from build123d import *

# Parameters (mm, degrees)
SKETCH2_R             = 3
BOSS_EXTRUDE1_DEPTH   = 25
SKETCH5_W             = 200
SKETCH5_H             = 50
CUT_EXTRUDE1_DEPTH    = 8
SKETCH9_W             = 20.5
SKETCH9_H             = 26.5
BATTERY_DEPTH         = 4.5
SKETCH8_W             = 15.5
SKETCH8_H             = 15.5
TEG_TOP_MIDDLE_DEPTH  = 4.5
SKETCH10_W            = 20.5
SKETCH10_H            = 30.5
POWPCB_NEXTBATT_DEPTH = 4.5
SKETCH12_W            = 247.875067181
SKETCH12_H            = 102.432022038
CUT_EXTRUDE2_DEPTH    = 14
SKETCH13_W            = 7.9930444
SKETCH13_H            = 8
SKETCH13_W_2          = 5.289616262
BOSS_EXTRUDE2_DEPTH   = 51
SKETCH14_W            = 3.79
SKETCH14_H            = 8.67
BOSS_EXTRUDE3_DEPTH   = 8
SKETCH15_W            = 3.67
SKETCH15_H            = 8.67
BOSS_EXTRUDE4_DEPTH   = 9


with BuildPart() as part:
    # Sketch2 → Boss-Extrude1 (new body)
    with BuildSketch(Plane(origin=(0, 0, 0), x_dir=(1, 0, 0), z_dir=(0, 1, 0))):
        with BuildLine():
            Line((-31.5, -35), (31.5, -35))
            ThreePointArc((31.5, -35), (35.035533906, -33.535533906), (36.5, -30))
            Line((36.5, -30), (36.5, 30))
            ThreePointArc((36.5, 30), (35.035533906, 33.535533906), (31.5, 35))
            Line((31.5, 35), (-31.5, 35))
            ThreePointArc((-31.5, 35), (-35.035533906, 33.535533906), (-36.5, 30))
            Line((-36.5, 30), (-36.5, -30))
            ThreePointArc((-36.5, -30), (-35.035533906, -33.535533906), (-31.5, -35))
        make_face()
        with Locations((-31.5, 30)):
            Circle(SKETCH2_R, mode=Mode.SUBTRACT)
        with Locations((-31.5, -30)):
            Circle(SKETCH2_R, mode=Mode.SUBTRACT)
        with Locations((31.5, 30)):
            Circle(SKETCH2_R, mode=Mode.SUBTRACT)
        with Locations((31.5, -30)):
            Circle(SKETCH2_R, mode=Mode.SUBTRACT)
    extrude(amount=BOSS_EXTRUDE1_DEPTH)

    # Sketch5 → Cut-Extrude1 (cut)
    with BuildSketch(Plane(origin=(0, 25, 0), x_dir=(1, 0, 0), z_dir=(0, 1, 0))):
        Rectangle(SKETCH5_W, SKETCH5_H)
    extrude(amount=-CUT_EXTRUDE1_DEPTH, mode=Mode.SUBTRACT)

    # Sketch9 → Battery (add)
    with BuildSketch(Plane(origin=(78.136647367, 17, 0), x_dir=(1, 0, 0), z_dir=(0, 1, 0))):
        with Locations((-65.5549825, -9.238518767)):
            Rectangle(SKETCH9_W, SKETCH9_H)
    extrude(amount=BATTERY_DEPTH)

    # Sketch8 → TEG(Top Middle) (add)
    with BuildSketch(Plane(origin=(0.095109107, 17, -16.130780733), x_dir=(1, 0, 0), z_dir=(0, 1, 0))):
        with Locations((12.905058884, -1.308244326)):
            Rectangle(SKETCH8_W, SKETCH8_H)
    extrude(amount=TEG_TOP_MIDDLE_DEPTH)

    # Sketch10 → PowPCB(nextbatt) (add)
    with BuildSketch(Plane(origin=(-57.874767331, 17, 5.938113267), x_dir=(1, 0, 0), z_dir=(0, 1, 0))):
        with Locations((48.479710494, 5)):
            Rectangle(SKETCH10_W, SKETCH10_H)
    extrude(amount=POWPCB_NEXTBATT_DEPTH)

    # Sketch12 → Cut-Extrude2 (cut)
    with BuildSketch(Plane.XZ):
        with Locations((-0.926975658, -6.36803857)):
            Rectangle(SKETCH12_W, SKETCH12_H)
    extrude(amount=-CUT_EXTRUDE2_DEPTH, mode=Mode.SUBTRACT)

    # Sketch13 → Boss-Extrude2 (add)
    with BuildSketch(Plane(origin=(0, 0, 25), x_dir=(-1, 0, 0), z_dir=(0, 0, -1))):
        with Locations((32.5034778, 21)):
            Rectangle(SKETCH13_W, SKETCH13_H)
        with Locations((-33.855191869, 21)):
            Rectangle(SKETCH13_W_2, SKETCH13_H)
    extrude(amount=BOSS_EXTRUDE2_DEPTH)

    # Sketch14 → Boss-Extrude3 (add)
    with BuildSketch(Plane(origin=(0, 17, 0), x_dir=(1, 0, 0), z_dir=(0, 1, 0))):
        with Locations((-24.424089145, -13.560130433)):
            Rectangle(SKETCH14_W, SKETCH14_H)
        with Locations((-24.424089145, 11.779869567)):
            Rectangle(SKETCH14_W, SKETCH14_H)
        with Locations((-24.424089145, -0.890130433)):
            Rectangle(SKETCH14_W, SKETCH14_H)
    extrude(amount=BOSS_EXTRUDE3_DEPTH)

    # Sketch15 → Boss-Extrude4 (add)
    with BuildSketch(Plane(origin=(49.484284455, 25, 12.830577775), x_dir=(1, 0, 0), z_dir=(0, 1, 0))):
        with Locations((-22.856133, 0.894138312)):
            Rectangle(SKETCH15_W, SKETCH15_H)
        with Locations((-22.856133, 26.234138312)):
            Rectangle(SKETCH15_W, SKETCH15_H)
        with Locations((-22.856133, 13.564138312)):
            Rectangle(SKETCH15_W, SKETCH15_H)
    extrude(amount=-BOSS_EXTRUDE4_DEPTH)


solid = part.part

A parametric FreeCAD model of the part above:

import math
import FreeCAD as App
import Part
import Sketcher
from FreeCAD import Vector


def add_polygon(sketch, points):
    """Adds a closed chain of lines whose ends are joined by coincident constraints."""
    first, n = sketch.GeometryCount, len(points)
    for a, b in zip(points, points[1:] + points[:1]):
        sketch.addGeometry(Part.LineSegment(App.Vector(*a, 0), App.Vector(*b, 0)), False)
    for i in range(n):
        sketch.addConstraint(Sketcher.Constraint("Coincident", first + i, 2, first + (i + 1) % n, 1))

doc = App.newDocument("Part")
params = doc.addObject("Spreadsheet::Sheet", "Params")
for row, (alias, value) in enumerate([
    ("sketch1_diameter", "6 mm"),
    ("sketch1_radius", "5 mm"),
    ("sketch1_width", "63 mm"),
    ("sketch1_height", "60 mm"),
    ("pad1_length", "25 mm"),
    ("sketch2_width", "200 mm"),
    ("sketch2_height", "50 mm"),
    ("pocket1_length", "8 mm"),
    ("sketch3_width", "20.5 mm"),
    ("sketch3_height", "26.5 mm"),
    ("pad2_length", "4.5 mm"),
    ("sketch4_width", "15.5 mm"),
    ("pad3_length", "4.5 mm"),
    ("sketch5_width", "20.5 mm"),
    ("sketch5_height", "30.5 mm"),
    ("pad4_length", "4.5 mm"),
    ("pocket2_length", "14 mm"),
    ("sketch7_height", "8 mm"),
    ("pad5_length", "51 mm"),
    ("sketch8_width", "3.79 mm"),
    ("sketch8_height", "8.67 mm"),
    ("pad6_length", "8 mm"),
    ("sketch9_width", "3.67 mm"),
    ("sketch9_height", "8.67 mm"),
    ("pad7_length", "9 mm"),
], start=1):
    params.set(f"A{row}", alias)
    params.set(f"B{row}", "=" + value)
    params.setAlias(f"B{row}", alias)

body = doc.addObject("PartDesign::Body", "Body")

sketch1 = body.newObject("Sketcher::SketchObject", "Sketch")
sketch1.AttachmentSupport = (doc.getObject("XZ_Plane"), [""])
sketch1.MapMode = "FlatFace"
sketch1.addGeometry(Part.LineSegment(Vector(-31.5, 35, 0), Vector(31.5, 35, 0)), False)
sketch1.addGeometry(Part.ArcOfCircle(Part.Circle(Vector(31.5, 30, 0), Vector(0, 0, 1), 5), math.radians(0), math.radians(90)), False)
sketch1.addGeometry(Part.LineSegment(Vector(36.5, 30, 0), Vector(36.5, -30, 0)), False)
sketch1.addGeometry(Part.ArcOfCircle(Part.Circle(Vector(31.5, -30, 0), Vector(0, 0, 1), 5), math.radians(-90), math.radians(0)), False)
sketch1.addGeometry(Part.LineSegment(Vector(31.5, -35, 0), Vector(-31.5, -35, 0)), False)
sketch1.addGeometry(Part.ArcOfCircle(Part.Circle(Vector(-31.5, -30, 0), Vector(0, 0, 1), 5), math.radians(180), math.radians(270)), False)
sketch1.addGeometry(Part.LineSegment(Vector(-36.5, -30, 0), Vector(-36.5, 30, 0)), False)
sketch1.addGeometry(Part.ArcOfCircle(Part.Circle(Vector(-31.5, 30, 0), Vector(0, 0, 1), 5), math.radians(90), math.radians(180)), False)
sketch1.addGeometry(Part.Circle(Vector(-31.5, 30, 0), Vector(0, 0, 1), 3), False)
sketch1.addGeometry(Part.Circle(Vector(31.5, 30, 0), Vector(0, 0, 1), 3), False)
sketch1.addGeometry(Part.Circle(Vector(-31.5, -30, 0), Vector(0, 0, 1), 3), False)
sketch1.addGeometry(Part.Circle(Vector(31.5, -30, 0), Vector(0, 0, 1), 3), False)
sketch1.addConstraint(Sketcher.Constraint("Tangent", 0, 2, 1, 2))
sketch1.addConstraint(Sketcher.Constraint("Tangent", 1, 1, 2, 1))
sketch1.addConstraint(Sketcher.Constraint("Tangent", 2, 2, 3, 2))
sketch1.addConstraint(Sketcher.Constraint("Tangent", 3, 1, 4, 1))
sketch1.addConstraint(Sketcher.Constraint("Tangent", 4, 2, 5, 2))
sketch1.addConstraint(Sketcher.Constraint("Tangent", 5, 1, 6, 1))
sketch1.addConstraint(Sketcher.Constraint("Tangent", 6, 2, 7, 2))
sketch1.addConstraint(Sketcher.Constraint("Tangent", 7, 1, 0, 1))
sketch1.addConstraint(Sketcher.Constraint("Horizontal", 0))
sketch1.addConstraint(Sketcher.Constraint("Vertical", 2))
sketch1.addConstraint(Sketcher.Constraint("Horizontal", 4))
sketch1.addConstraint(Sketcher.Constraint("Vertical", 6))
sketch1.addConstraint(Sketcher.Constraint("Coincident", 8, 3, 7, 3))
sketch1.addConstraint(Sketcher.Constraint("Coincident", 9, 3, 1, 3))
sketch1.addConstraint(Sketcher.Constraint("Coincident", 10, 3, 5, 3))
sketch1.addConstraint(Sketcher.Constraint("Coincident", 11, 3, 3, 3))
sketch1.addConstraint(Sketcher.Constraint("Equal", 1, 3))
sketch1.addConstraint(Sketcher.Constraint("Equal", 3, 5))
sketch1.addConstraint(Sketcher.Constraint("Equal", 5, 7))
sketch1.addConstraint(Sketcher.Constraint("Equal", 8, 9))
sketch1.addConstraint(Sketcher.Constraint("Equal", 9, 10))
sketch1.addConstraint(Sketcher.Constraint("Equal", 10, 11))
sketch1.addConstraint(Sketcher.Constraint("Symmetric", 1, 3, 5, 3, -1, 1))
sketch1.addConstraint(Sketcher.Constraint("Diameter", 8, 6.0))
sketch1.addConstraint(Sketcher.Constraint("Radius", 1, 5.0))
sketch1.addConstraint(Sketcher.Constraint("DistanceX", 0, 1, 0, 2, 63.0))
sketch1.addConstraint(Sketcher.Constraint("DistanceY", 2, 2, 2, 1, 60.0))
sketch1.setExpression("Constraints[23]", "Params.sketch1_diameter")
sketch1.setExpression("Constraints[24]", "Params.sketch1_radius")
sketch1.setExpression("Constraints[25]", "Params.sketch1_width")
sketch1.setExpression("Constraints[26]", "Params.sketch1_height")
pad1 = body.newObject("PartDesign::Pad", "Pad")
pad1.Profile = sketch1
pad1.setExpression("Length", "Params.pad1_length")
pad1.Reversed = True

sketch2 = body.newObject("Sketcher::SketchObject", "Sketch001")
sketch2.AttachmentSupport = (doc.getObject("XZ_Plane"), [""])
sketch2.MapMode = "FlatFace"
sketch2.AttachmentOffset = App.Placement(Vector(0, 0, -25), App.Rotation())
add_polygon(sketch2, [(-100, -25), (-100, 25), (100, 25), (100, -25)])
sketch2.addConstraint(Sketcher.Constraint("Vertical", 0))
sketch2.addConstraint(Sketcher.Constraint("Horizontal", 1))
sketch2.addConstraint(Sketcher.Constraint("Vertical", 2))
sketch2.addConstraint(Sketcher.Constraint("Horizontal", 3))
sketch2.addConstraint(Sketcher.Constraint("Symmetric", 0, 2, 2, 2, -1, 1))
sketch2.addConstraint(Sketcher.Constraint("DistanceX", 1, 1, 1, 2, 200.0))
sketch2.addConstraint(Sketcher.Constraint("DistanceY", 0, 1, 0, 2, 50.0))
sketch2.setExpression("Constraints[9]", "Params.sketch2_width")
sketch2.setExpression("Constraints[10]", "Params.sketch2_height")
pocket1 = body.newObject("PartDesign::Pocket", "Pocket")
pocket1.Profile = sketch2
pocket1.setExpression("Length", "Params.pocket1_length")
pocket1.Reversed = True

sketch3 = body.newObject("Sketcher::SketchObject", "Sketch002")
sketch3.AttachmentSupport = (doc.getObject("XZ_Plane"), [""])
sketch3.MapMode = "FlatFace"
sketch3.AttachmentOffset = App.Placement(Vector(0, 0, -17), App.Rotation())
add_polygon(sketch3, [(2, -4), (2, 22), (23, 22), (23, -4)])
sketch3.addConstraint(Sketcher.Constraint("Vertical", 0))
sketch3.addConstraint(Sketcher.Constraint("Horizontal", 1))
sketch3.addConstraint(Sketcher.Constraint("Vertical", 2))
sketch3.addConstraint(Sketcher.Constraint("Horizontal", 3))
sketch3.addConstraint(Sketcher.Constraint("DistanceX", 1, 1, 1, 2, 20.5))
sketch3.addConstraint(Sketcher.Constraint("DistanceY", 0, 1, 0, 2, 26.5))
sketch3.addConstraint(Sketcher.Constraint("DistanceY", -1, 1, 0, 2, 22.488519))
sketch3.addConstraint(Sketcher.Constraint("DistanceX", -1, 1, 0, 2, 2.331665))
sketch3.setExpression("Constraints[8]", "Params.sketch3_width")
sketch3.setExpression("Constraints[9]", "Params.sketch3_height")
pad2 = body.newObject("PartDesign::Pad", "Pad001")
pad2.Profile = sketch3
pad2.setExpression("Length", "Params.pad2_length")
pad2.Reversed = True

sketch4 = body.newObject("Sketcher::SketchObject", "Sketch003")
sketch4.AttachmentSupport = (doc.getObject("XZ_Plane"), [""])
sketch4.MapMode = "FlatFace"
sketch4.AttachmentOffset = App.Placement(Vector(0, 0, -17), App.Rotation())
add_polygon(sketch4, [(5, -23), (5, -7), (21, -7), (21, -23)])
sketch4.addConstraint(Sketcher.Constraint("Vertical", 0))
sketch4.addConstraint(Sketcher.Constraint("Horizontal", 1))
sketch4.addConstraint(Sketcher.Constraint("Vertical", 2))
sketch4.addConstraint(Sketcher.Constraint("Horizontal", 3))
sketch4.addConstraint(Sketcher.Constraint("Equal", 3, 0))
sketch4.addConstraint(Sketcher.Constraint("DistanceX", 1, 1, 1, 2, 15.5))
sketch4.addConstraint(Sketcher.Constraint("DistanceX", -1, 1, 0, 2, 5.250168))
sketch4.addConstraint(Sketcher.Constraint("DistanceY", 0, 2, -1, 1, 7.072536))
sketch4.setExpression("Constraints[9]", "Params.sketch4_width")
pad3 = body.newObject("PartDesign::Pad", "Pad002")
pad3.Profile = sketch4
pad3.setExpression("Length", "Params.pad3_length")
pad3.Reversed = True

sketch5 = body.newObject("Sketcher::SketchObject", "Sketch004")
sketch5.AttachmentSupport = (doc.getObject("XZ_Plane"), [""])
sketch5.MapMode = "FlatFace"
sketch5.AttachmentOffset = App.Placement(Vector(0, 0, -17), App.Rotation())
add_polygon(sketch5, [(-20, -14), (-20, 16), (1, 16), (1, -14)])
sketch5.addConstraint(Sketcher.Constraint("Vertical", 0))
sketch5.addConstraint(Sketcher.Constraint("Horizontal", 1))
sketch5.addConstraint(Sketcher.Constraint("Vertical", 2))
sketch5.addConstraint(Sketcher.Constraint("Horizontal", 3))
sketch5.addConstraint(Sketcher.Constraint("DistanceX", 1, 1, 1, 2, 20.5))
sketch5.addConstraint(Sketcher.Constraint("DistanceY", 0, 1, 0, 2, 30.5))
sketch5.addConstraint(Sketcher.Constraint("DistanceX", 0, 2, -1, 1, 19.645057))
sketch5.addConstraint(Sketcher.Constraint("DistanceY", -1, 1, 0, 2, 16.188113))
sketch5.setExpression("Constraints[8]", "Params.sketch5_width")
sketch5.setExpression("Constraints[9]", "Params.sketch5_height")
pad4 = body.newObject("PartDesign::Pad", "Pad003")
pad4.Profile = sketch5
pad4.setExpression("Length", "Params.pad4_length")
pad4.Reversed = True

sketch6 = body.newObject("Sketcher::SketchObject", "Sketch005")
sketch6.AttachmentSupport = (doc.getObject("XZ_Plane"), [""])
sketch6.MapMode = "FlatFace"
add_polygon(sketch6, [(-125, 45), (-125, -58), (123, -58), (123, 45)])
sketch6.addConstraint(Sketcher.Constraint("Vertical", 0))
sketch6.addConstraint(Sketcher.Constraint("Horizontal", 1))
sketch6.addConstraint(Sketcher.Constraint("Vertical", 2))
sketch6.addConstraint(Sketcher.Constraint("Horizontal", 3))
sketch6.addConstraint(Sketcher.Constraint("DistanceX", 1, 1, 1, 2, 247.875067))
sketch6.addConstraint(Sketcher.Constraint("DistanceY", 0, 2, 0, 1, 102.432022))
sketch6.addConstraint(Sketcher.Constraint("DistanceX", 0, 2, -1, 1, 124.864509))
sketch6.addConstraint(Sketcher.Constraint("DistanceY", 0, 2, -1, 1, 57.58405))
pocket2 = body.newObject("PartDesign::Pocket", "Pocket001")
pocket2.Profile = sketch6
pocket2.setExpression("Length", "Params.pocket2_length")

sketch7 = body.newObject("Sketcher::SketchObject", "Sketch006")
sketch7.AttachmentSupport = (doc.getObject("XY_Plane"), [""])
sketch7.MapMode = "FlatFace"
sketch7.AttachmentOffset = App.Placement(Vector(0, 0, 25), App.Rotation())
add_polygon(sketch7, [(-29, 25), (-29, 17), (-36, 17), (-36, 25)])
add_polygon(sketch7, [(36, 25), (36, 17), (31, 17), (31, 25)])
sketch7.addConstraint(Sketcher.Constraint("Vertical", 0))
sketch7.addConstraint(Sketcher.Constraint("Horizontal", 1))
sketch7.addConstraint(Sketcher.Constraint("Vertical", 2))
sketch7.addConstraint(Sketcher.Constraint("Horizontal", 3))
sketch7.addConstraint(Sketcher.Constraint("Vertical", 4))
sketch7.addConstraint(Sketcher.Constraint("Horizontal", 5))
sketch7.addConstraint(Sketcher.Constraint("Vertical", 6))
sketch7.addConstraint(Sketcher.Constraint("Horizontal", 7))
sketch7.addConstraint(Sketcher.Constraint("Symmetric", 1, 2, 4, 2, -2))
sketch7.addConstraint(Sketcher.Constraint("Horizontal", 3, 2, 6, 2))
sketch7.addConstraint(Sketcher.Constraint("DistanceY", 0, 2, 0, 1, 8.0))
sketch7.addConstraint(Sketcher.Constraint("DistanceY", -1, 1, 0, 2, 17.0))
sketch7.addConstraint(Sketcher.Constraint("DistanceX", 1, 2, 4, 2, 73.0))
sketch7.addConstraint(Sketcher.Constraint("DistanceX", 1, 2, 1, 1, 7.993044))
sketch7.addConstraint(Sketcher.Constraint("DistanceX", 5, 2, 5, 1, 5.289616))
sketch7.setExpression("Constraints[18]", "Params.sketch7_height")
pad5 = body.newObject("PartDesign::Pad", "Pad004")
pad5.Profile = sketch7
pad5.setExpression("Length", "Params.pad5_length")
pad5.Reversed = True

sketch8 = body.newObject("Sketcher::SketchObject", "Sketch007")
sketch8.AttachmentSupport = (doc.getObject("XZ_Plane"), [""])
sketch8.MapMode = "FlatFace"
sketch8.AttachmentOffset = App.Placement(Vector(0, 0, -17), App.Rotation())
add_polygon(sketch8, [(-26.3, 9.2), (-26.3, 17.9), (-22.5, 17.9), (-22.5, 9.2)])
add_polygon(sketch8, [(-26.3, -16.1), (-26.3, -7.4), (-22.5, -7.4), (-22.5, -16.1)])
add_polygon(sketch8, [(-26.3, -3.4), (-26.3, 5.2), (-22.5, 5.2), (-22.5, -3.4)])
sketch8.addConstraint(Sketcher.Constraint("Vertical", 0))
sketch8.addConstraint(Sketcher.Constraint("Horizontal", 1))
sketch8.addConstraint(Sketcher.Constraint("Vertical", 2))
sketch8.addConstraint(Sketcher.Constraint("Horizontal", 3))
sketch8.addConstraint(Sketcher.Constraint("Vertical", 4))
sketch8.addConstraint(Sketcher.Constraint("Horizontal", 5))
sketch8.addConstraint(Sketcher.Constraint("Vertical", 6))
sketch8.addConstraint(Sketcher.Constraint("Horizontal", 7))
sketch8.addConstraint(Sketcher.Constraint("Vertical", 8))
sketch8.addConstraint(Sketcher.Constraint("Horizontal", 9))
sketch8.addConstraint(Sketcher.Constraint("Vertical", 10))
sketch8.addConstraint(Sketcher.Constraint("Horizontal", 11))
sketch8.addConstraint(Sketcher.Constraint("Vertical", 3, 2, 4, 2))
sketch8.addConstraint(Sketcher.Constraint("Vertical", 2, 2, 5, 2))
sketch8.addConstraint(Sketcher.Constraint("Vertical", 7, 2, 8, 2))
sketch8.addConstraint(Sketcher.Constraint("Vertical", 6, 2, 9, 2))
sketch8.addConstraint(Sketcher.Constraint("Equal", 2, 4))
sketch8.addConstraint(Sketcher.Constraint("Equal", 6, 8))
sketch8.addConstraint(Sketcher.Constraint("DistanceY", 8, 2, 3, 2, 4.0))
sketch8.addConstraint(Sketcher.Constraint("DistanceY", 5, 2, 10, 2, 4.0))
sketch8.addConstraint(Sketcher.Constraint("DistanceX", 1, 1, 1, 2, 3.79))
sketch8.addConstraint(Sketcher.Constraint("DistanceY", 0, 1, 0, 2, 8.67))
sketch8.addConstraint(Sketcher.Constraint("DistanceX", 0, 2, -1, 1, 26.319089))
sketch8.addConstraint(Sketcher.Constraint("DistanceY", -1, 1, 0, 2, 17.89513))
sketch8.setExpression("Constraints[32]", "Params.sketch8_width")
sketch8.setExpression("Constraints[33]", "Params.sketch8_height")
pad6 = body.newObject("PartDesign::Pad", "Pad005")
pad6.Profile = sketch8
pad6.setExpression("Length", "Params.pad6_length")
pad6.Reversed = True

sketch9 = body.newObject("Sketcher::SketchObject", "Sketch008")
sketch9.AttachmentSupport = (doc.getObject("XZ_Plane"), [""])
sketch9.MapMode = "FlatFace"
sketch9.AttachmentOffset = App.Placement(Vector(0, 0, -25), App.Rotation())
add_polygon(sketch9, [(24.8, 7.6), (24.8, 16.3), (28.5, 16.3), (28.5, 7.6)])
add_polygon(sketch9, [(24.8, -17.7), (24.8, -9.1), (28.5, -9.1), (28.5, -17.7)])
add_polygon(sketch9, [(24.8, -5.1), (24.8, 3.6), (28.5, 3.6), (28.5, -5.1)])
sketch9.addConstraint(Sketcher.Constraint("Vertical", 0))
sketch9.addConstraint(Sketcher.Constraint("Horizontal", 1))
sketch9.addConstraint(Sketcher.Constraint("Vertical", 2))
sketch9.addConstraint(Sketcher.Constraint("Horizontal", 3))
sketch9.addConstraint(Sketcher.Constraint("Vertical", 4))
sketch9.addConstraint(Sketcher.Constraint("Horizontal", 5))
sketch9.addConstraint(Sketcher.Constraint("Vertical", 6))
sketch9.addConstraint(Sketcher.Constraint("Horizontal", 7))
sketch9.addConstraint(Sketcher.Constraint("Vertical", 8))
sketch9.addConstraint(Sketcher.Constraint("Horizontal", 9))
sketch9.addConstraint(Sketcher.Constraint("Vertical", 10))
sketch9.addConstraint(Sketcher.Constraint("Horizontal", 11))
sketch9.addConstraint(Sketcher.Constraint("Vertical", 3, 2, 4, 2))
sketch9.addConstraint(Sketcher.Constraint("Vertical", 2, 2, 5, 2))
sketch9.addConstraint(Sketcher.Constraint("Vertical", 7, 2, 8, 2))
sketch9.addConstraint(Sketcher.Constraint("Vertical", 6, 2, 9, 2))
sketch9.addConstraint(Sketcher.Constraint("Equal", 2, 4))
sketch9.addConstraint(Sketcher.Constraint("Equal", 6, 8))
sketch9.addConstraint(Sketcher.Constraint("DistanceY", 8, 2, 3, 2, 4.0))
sketch9.addConstraint(Sketcher.Constraint("DistanceY", 5, 2, 10, 2, 4.0))
sketch9.addConstraint(Sketcher.Constraint("DistanceX", 1, 1, 1, 2, 3.67))
sketch9.addConstraint(Sketcher.Constraint("DistanceY", 0, 1, 0, 2, 8.67))
sketch9.addConstraint(Sketcher.Constraint("DistanceX", -1, 1, 0, 2, 24.793151))
sketch9.addConstraint(Sketcher.Constraint("DistanceY", -1, 1, 0, 2, 16.271439))
sketch9.setExpression("Constraints[32]", "Params.sketch9_width")
sketch9.setExpression("Constraints[33]", "Params.sketch9_height")
pad7 = body.newObject("PartDesign::Pad", "Pad006")
pad7.Profile = sketch9
pad7.setExpression("Length", "Params.pad7_length")

doc.recompute()
